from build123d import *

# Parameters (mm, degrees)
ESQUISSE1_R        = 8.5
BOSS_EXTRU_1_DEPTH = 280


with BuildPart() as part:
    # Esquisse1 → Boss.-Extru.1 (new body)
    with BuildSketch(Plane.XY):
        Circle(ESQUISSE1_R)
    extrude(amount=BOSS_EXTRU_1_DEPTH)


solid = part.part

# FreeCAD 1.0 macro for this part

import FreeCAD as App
import Part
import Sketcher

V = App.Vector
Q = App.Units.Quantity

doc = App.newDocument("Part")
body = doc.addObject("PartDesign::Body", "Body")

sketch1 = body.newObject("Sketcher::SketchObject", "Sketch")
sketch1.AttachmentSupport = (doc.getObject("XY_Plane"), [""])
sketch1.MapMode = "FlatFace"
sketch1.addGeometry(Part.Circle(V(0, 0, 0), V(0, 0, 1), 8.5), False)
sketch1.addConstraint([
    Sketcher.Constraint("Coincident", 0, 3, -1, 1),
    Sketcher.Constraint("Diameter", 0, Q("17 mm")),
])
pad1 = body.newObject("PartDesign::Pad", "Pad")
pad1.Profile = sketch1
pad1.Length = 280

doc.recompute()
